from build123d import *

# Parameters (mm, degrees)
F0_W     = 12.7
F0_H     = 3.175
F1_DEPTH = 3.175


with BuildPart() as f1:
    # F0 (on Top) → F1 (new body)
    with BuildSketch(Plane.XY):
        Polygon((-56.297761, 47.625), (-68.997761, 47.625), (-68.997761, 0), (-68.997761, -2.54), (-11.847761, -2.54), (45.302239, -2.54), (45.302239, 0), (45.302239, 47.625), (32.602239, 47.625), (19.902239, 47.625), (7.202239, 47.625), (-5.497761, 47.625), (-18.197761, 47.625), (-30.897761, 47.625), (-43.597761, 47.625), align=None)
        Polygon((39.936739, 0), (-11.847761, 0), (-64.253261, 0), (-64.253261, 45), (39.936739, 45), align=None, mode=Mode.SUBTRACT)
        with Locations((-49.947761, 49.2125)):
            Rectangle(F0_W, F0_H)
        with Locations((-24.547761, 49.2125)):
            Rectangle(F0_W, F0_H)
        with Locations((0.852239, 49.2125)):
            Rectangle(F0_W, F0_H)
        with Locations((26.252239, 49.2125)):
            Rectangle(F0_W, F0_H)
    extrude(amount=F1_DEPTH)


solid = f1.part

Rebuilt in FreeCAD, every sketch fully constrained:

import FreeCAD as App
import Part
import Sketcher
from FreeCAD import Vector
Q = App.Units.Quantity


def add_polygon(sketch, points):
    """Adds a closed chain of lines whose ends are joined by coincident constraints."""
    first, n = sketch.GeometryCount, len(points)
    for a, b in zip(points, points[1:] + points[:1]):
        sketch.addGeometry(Part.LineSegment(App.Vector(*a, 0), App.Vector(*b, 0)), False)
    for i in range(n):
        sketch.addConstraint(Sketcher.Constraint("Coincident", first + i, 2, first + (i + 1) % n, 1))

doc = App.newDocument("Part")
body = doc.addObject("PartDesign::Body", "Body")

# Sketch on XY plane
sketch1 = doc.addObject("Sketcher::SketchObject", "Sketch")
body.addObject(sketch1)
sketch1.AttachmentSupport = (doc.XY_Plane, [""])
sketch1.MapMode = "FlatFace"
add_polygon(sketch1, [(-69, 47.6), (-69, -2.5), (45.3, -2.5), (45.3, 47.6), (32.6, 47.6), (32.6, 50.8), (19.9, 50.8), (19.9, 47.6), (7.2, 47.6), (7.2, 50.8), (-5.5, 50.8), (-5.5, 47.6), (-18.2, 47.6), (-18.2, 50.8), (-30.9, 50.8), (-30.9, 47.6), (-43.6, 47.6), (-43.6, 50.8), (-56.3, 50.8), (-56.3, 47.6)])  # lines 0-19
add_polygon(sketch1, [(39.9, 45), (39.9, 0), (-64.3, 0), (-64.3, 45)])  # lines 20-23
sketch1.addConstraint(Sketcher.Constraint("Vertical", 0))
sketch1.addConstraint(Sketcher.Constraint("Horizontal", 1))
sketch1.addConstraint(Sketcher.Constraint("Vertical", 2))
sketch1.addConstraint(Sketcher.Constraint("Horizontal", 3))
sketch1.addConstraint(Sketcher.Constraint("Vertical", 4))
sketch1.addConstraint(Sketcher.Constraint("Horizontal", 5))
sketch1.addConstraint(Sketcher.Constraint("Vertical", 6))
sketch1.addConstraint(Sketcher.Constraint("Horizontal", 7))
sketch1.addConstraint(Sketcher.Constraint("Vertical", 8))
sketch1.addConstraint(Sketcher.Constraint("Horizontal", 9))
sketch1.addConstraint(Sketcher.Constraint("Vertical", 10))
sketch1.addConstraint(Sketcher.Constraint("Horizontal", 11))
sketch1.addConstraint(Sketcher.Constraint("Vertical", 12))
sketch1.addConstraint(Sketcher.Constraint("Horizontal", 13))
sketch1.addConstraint(Sketcher.Constraint("Vertical", 14))
sketch1.addConstraint(Sketcher.Constraint("Horizontal", 15))
sketch1.addConstraint(Sketcher.Constraint("Vertical", 16))
sketch1.addConstraint(Sketcher.Constraint("Horizontal", 17))
sketch1.addConstraint(Sketcher.Constraint("Vertical", 18))
sketch1.addConstraint(Sketcher.Constraint("Horizontal", 19))
sketch1.addConstraint(Sketcher.Constraint("Vertical", 20))
sketch1.addConstraint(Sketcher.Constraint("Horizontal", 21))
sketch1.addConstraint(Sketcher.Constraint("Vertical", 22))
sketch1.addConstraint(Sketcher.Constraint("Horizontal", 23))
sketch1.addConstraint(Sketcher.Constraint("PointOnObject", 20, 2, -1))
sketch1.addConstraint(Sketcher.Constraint("Horizontal", 3, 2, 6, 2))
sketch1.addConstraint(Sketcher.Constraint("Horizontal", 5, 2, 8, 2))
sketch1.addConstraint(Sketcher.Constraint("Horizontal", 7, 2, 10, 2))
sketch1.addConstraint(Sketcher.Constraint("Horizontal", 9, 2, 12, 2))
sketch1.addConstraint(Sketcher.Constraint("Horizontal", 11, 2, 14, 2))
sketch1.addConstraint(Sketcher.Constraint("Horizontal", 13, 2, 16, 2))
sketch1.addConstraint(Sketcher.Constraint("Horizontal", 15, 2, 18, 2))
sketch1.addConstraint(Sketcher.Constraint("Equal", 3, 5))
sketch1.addConstraint(Sketcher.Constraint("Equal", 5, 7))
sketch1.addConstraint(Sketcher.Constraint("Equal", 7, 9))
sketch1.addConstraint(Sketcher.Constraint("Equal", 9, 11))
sketch1.addConstraint(Sketcher.Constraint("Equal", 11, 13))
sketch1.addConstraint(Sketcher.Constraint("Equal", 13, 15))
sketch1.addConstraint(Sketcher.Constraint("Equal", 15, 17))
sketch1.addConstraint(Sketcher.Constraint("Equal", 17, 19))
sketch1.addConstraint(Sketcher.Constraint("DistanceX", 1, 1, 1, 2, Q("4.5 in")))
sketch1.addConstraint(Sketcher.Constraint("DistanceY", -1, 1, 4, 2, Q("2 in")))
sketch1.addConstraint(Sketcher.Constraint("DistanceY", 0, 2, -1, 1, Q("0.1 in")))
sketch1.addConstraint(Sketcher.Constraint("DistanceY", 0, 2, 0, 1, Q("1.975 in")))
sketch1.addConstraint(Sketcher.Constraint("DistanceX", 21, 2, 21, 1, 104.19))
sketch1.addConstraint(Sketcher.Constraint("DistanceY", 20, 2, 20, 1, 45.0))
sketch1.addConstraint(Sketcher.Constraint("DistanceX", 20, 2, 1, 2, 5.3655))
sketch1.addConstraint(Sketcher.Constraint("DistanceX", 0, 2, -1, 1, 68.997761))
pad1 = doc.addObject("PartDesign::Pad", "Pad")
body.addObject(pad1)
pad1.Profile = sketch1
pad1.Length = Q("0.125 in")

doc.recompute()
